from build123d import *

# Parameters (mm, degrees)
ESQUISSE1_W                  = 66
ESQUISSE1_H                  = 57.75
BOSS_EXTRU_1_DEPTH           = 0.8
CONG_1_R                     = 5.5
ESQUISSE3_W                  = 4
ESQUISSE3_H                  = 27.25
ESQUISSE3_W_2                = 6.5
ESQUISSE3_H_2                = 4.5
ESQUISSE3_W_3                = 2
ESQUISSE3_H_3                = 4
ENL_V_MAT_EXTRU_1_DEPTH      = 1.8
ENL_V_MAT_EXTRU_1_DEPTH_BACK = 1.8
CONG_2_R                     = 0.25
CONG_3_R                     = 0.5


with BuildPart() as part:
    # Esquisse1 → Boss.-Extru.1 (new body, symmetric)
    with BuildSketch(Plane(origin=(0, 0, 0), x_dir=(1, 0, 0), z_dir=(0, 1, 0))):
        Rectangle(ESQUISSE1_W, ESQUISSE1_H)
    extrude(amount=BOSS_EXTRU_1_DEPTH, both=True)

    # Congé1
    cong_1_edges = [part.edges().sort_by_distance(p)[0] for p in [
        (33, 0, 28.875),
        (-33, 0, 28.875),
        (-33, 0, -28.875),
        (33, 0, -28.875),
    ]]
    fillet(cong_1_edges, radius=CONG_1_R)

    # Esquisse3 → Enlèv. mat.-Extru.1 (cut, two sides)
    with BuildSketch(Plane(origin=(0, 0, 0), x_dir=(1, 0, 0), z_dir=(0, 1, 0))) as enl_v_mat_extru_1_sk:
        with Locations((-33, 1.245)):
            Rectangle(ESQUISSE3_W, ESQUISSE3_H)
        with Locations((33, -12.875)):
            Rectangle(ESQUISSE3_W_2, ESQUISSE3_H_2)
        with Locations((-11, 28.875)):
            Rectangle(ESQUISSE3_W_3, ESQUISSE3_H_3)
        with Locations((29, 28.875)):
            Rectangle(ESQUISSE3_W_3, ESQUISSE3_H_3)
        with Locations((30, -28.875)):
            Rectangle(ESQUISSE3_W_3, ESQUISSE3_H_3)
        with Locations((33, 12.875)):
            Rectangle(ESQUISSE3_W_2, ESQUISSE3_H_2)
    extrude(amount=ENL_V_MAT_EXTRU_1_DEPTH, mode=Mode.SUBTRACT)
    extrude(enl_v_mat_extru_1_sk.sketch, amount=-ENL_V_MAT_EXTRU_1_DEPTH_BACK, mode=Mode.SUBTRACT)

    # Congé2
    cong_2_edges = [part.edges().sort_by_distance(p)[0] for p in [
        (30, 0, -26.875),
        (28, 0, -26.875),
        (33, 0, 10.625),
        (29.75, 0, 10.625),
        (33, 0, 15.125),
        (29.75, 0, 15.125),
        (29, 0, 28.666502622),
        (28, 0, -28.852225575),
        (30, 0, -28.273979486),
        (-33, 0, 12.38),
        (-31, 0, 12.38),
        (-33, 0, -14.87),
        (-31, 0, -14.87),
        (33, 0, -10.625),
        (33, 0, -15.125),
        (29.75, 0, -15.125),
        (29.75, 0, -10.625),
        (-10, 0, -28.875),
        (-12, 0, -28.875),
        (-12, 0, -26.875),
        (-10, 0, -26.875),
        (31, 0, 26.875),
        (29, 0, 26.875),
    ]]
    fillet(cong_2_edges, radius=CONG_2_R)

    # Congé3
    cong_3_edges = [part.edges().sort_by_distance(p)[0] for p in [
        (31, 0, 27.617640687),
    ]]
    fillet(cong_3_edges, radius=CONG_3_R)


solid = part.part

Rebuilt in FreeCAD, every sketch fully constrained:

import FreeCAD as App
import Part
import Sketcher
Q = App.Units.Quantity


def edges_at(feature, points):
    """Names of the edges that pass closest to the given points."""
    edges = feature.Shape.Edges
    near = lambda p: min(range(len(edges)), key=lambda i: edges[i].distToShape(Part.Vertex(*p))[0])
    return sorted({f"Edge{near(p) + 1}" for p in points})

doc = App.newDocument("Part")
body = doc.addObject("PartDesign::Body", "Body")

sketch1 = doc.addObject("Sketcher::SketchObject", "Sketch")
body.addObject(sketch1)
sketch1.AttachmentSupport = (doc.XZ_Plane, [""])
sketch1.MapMode = "FlatFace"
sketch1.addGeometry([
    Part.LineSegment(App.Vector(-33, -28.875, 0), App.Vector(-33, 28.875, 0)),
    Part.LineSegment(App.Vector(-33, 28.875, 0), App.Vector(33, 28.875, 0)),
    Part.LineSegment(App.Vector(33, 28.875, 0), App.Vector(33, -28.875, 0)),
    Part.LineSegment(App.Vector(33, -28.875, 0), App.Vector(-33, -28.875, 0)),
], False)
sketch1.addConstraint([
    Sketcher.Constraint("Coincident", 0, 2, 1, 1),
    Sketcher.Constraint("Coincident", 1, 2, 2, 1),
    Sketcher.Constraint("Coincident", 2, 2, 3, 1),
    Sketcher.Constraint("Coincident", 3, 2, 0, 1),
    Sketcher.Constraint("Vertical", 0),
    Sketcher.Constraint("Horizontal", 1),
    Sketcher.Constraint("Vertical", 2),
    Sketcher.Constraint("Horizontal", 3),
    Sketcher.Constraint("Symmetric", 0, 2, 2, 2, -1, 1),
    Sketcher.Constraint("DistanceX", 1, 1, 1, 2, Q("66 mm")),
    Sketcher.Constraint("DistanceY", 0, 1, 0, 2, Q("57.75 mm")),
])
pad1 = doc.addObject("PartDesign::Pad", "Pad")
body.addObject(pad1)
pad1.Profile = sketch1
pad1.Length = 1.6
pad1.Midplane = True
doc.recompute()

fillet = doc.addObject("PartDesign::Fillet", "Fillet")
body.addObject(fillet)
fillet.Base = (pad1, edges_at(pad1, [
    (33, 0, 28.875),
    (-33, 0, 28.875),
    (-33, 0, -28.875),
    (33, 0, -28.875),
]))
fillet.Radius = 5.5

sketch2 = doc.addObject("Sketcher::SketchObject", "Sketch001")
body.addObject(sketch2)
sketch2.AttachmentSupport = (doc.XZ_Plane, [""])
sketch2.MapMode = "FlatFace"
sketch2.addGeometry([
    Part.LineSegment(App.Vector(-35, -14.87, 0), App.Vector(-35, 12.38, 0)),
    Part.LineSegment(App.Vector(-35, 12.38, 0), App.Vector(-31, 12.38, 0)),
    Part.LineSegment(App.Vector(-31, 12.38, 0), App.Vector(-31, -14.87, 0)),
    Part.LineSegment(App.Vector(-31, -14.87, 0), App.Vector(-35, -14.87, 0)),
    Part.LineSegment(App.Vector(29.75, 10.625, 0), App.Vector(29.75, 15.125, 0)),
    Part.LineSegment(App.Vector(29.75, 15.125, 0), App.Vector(36.25, 15.125, 0)),
    Part.LineSegment(App.Vector(36.25, 15.125, 0), App.Vector(36.25, 10.625, 0)),
    Part.LineSegment(App.Vector(36.25, 10.625, 0), App.Vector(29.75, 10.625, 0)),
    Part.LineSegment(App.Vector(-12, -30.875, 0), App.Vector(-12, -26.875, 0)),
    Part.LineSegment(App.Vector(-12, -26.875, 0), App.Vector(-10, -26.875, 0)),
    Part.LineSegment(App.Vector(-10, -26.875, 0), App.Vector(-10, -30.875, 0)),
    Part.LineSegment(App.Vector(-10, -30.875, 0), App.Vector(-12, -30.875, 0)),
    Part.LineSegment(App.Vector(28, -30.875, 0), App.Vector(28, -26.875, 0)),
    Part.LineSegment(App.Vector(28, -26.875, 0), App.Vector(30, -26.875, 0)),
    Part.LineSegment(App.Vector(30, -26.875, 0), App.Vector(30, -30.875, 0)),
    Part.LineSegment(App.Vector(30, -30.875, 0), App.Vector(28, -30.875, 0)),
    Part.LineSegment(App.Vector(29, 26.875, 0), App.Vector(29, 30.875, 0)),
    Part.LineSegment(App.Vector(29, 30.875, 0), App.Vector(31, 30.875, 0)),
    Part.LineSegment(App.Vector(31, 30.875, 0), App.Vector(31, 26.875, 0)),
    Part.LineSegment(App.Vector(31, 26.875, 0), App.Vector(29, 26.875, 0)),
    Part.LineSegment(App.Vector(29.75, -15.125, 0), App.Vector(29.75, -10.625, 0)),
    Part.LineSegment(App.Vector(29.75, -10.625, 0), App.Vector(36.25, -10.625, 0)),
    Part.LineSegment(App.Vector(36.25, -10.625, 0), App.Vector(36.25, -15.125, 0)),
    Part.LineSegment(App.Vector(36.25, -15.125, 0), App.Vector(29.75, -15.125, 0)),
], False)
sketch2.addConstraint([
    Sketcher.Constraint("Coincident", 0, 2, 1, 1),
    Sketcher.Constraint("Coincident", 1, 2, 2, 1),
    Sketcher.Constraint("Coincident", 2, 2, 3, 1),
    Sketcher.Constraint("Coincident", 3, 2, 0, 1),
    Sketcher.Constraint("Coincident", 4, 2, 5, 1),
    Sketcher.Constraint("Coincident", 5, 2, 6, 1),
    Sketcher.Constraint("Coincident", 6, 2, 7, 1),
    Sketcher.Constraint("Coincident", 7, 2, 4, 1),
    Sketcher.Constraint("Coincident", 8, 2, 9, 1),
    Sketcher.Constraint("Coincident", 9, 2, 10, 1),
    Sketcher.Constraint("Coincident", 10, 2, 11, 1),
    Sketcher.Constraint("Coincident", 11, 2, 8, 1),
    Sketcher.Constraint("Coincident", 12, 2, 13, 1),
    Sketcher.Constraint("Coincident", 13, 2, 14, 1),
    Sketcher.Constraint("Coincident", 14, 2, 15, 1),
    Sketcher.Constraint("Coincident", 15, 2, 12, 1),
    Sketcher.Constraint("Coincident", 16, 2, 17, 1),
    Sketcher.Constraint("Coincident", 17, 2, 18, 1),
    Sketcher.Constraint("Coincident", 18, 2, 19, 1),
    Sketcher.Constraint("Coincident", 19, 2, 16, 1),
    Sketcher.Constraint("Coincident", 20, 2, 21, 1),
    Sketcher.Constraint("Coincident", 21, 2, 22, 1),
    Sketcher.Constraint("Coincident", 22, 2, 23, 1),
    Sketcher.Constraint("Coincident", 23, 2, 20, 1),
    Sketcher.Constraint("Vertical", 0),
    Sketcher.Constraint("Horizontal", 1),
    Sketcher.Constraint("Vertical", 2),
    Sketcher.Constraint("Horizontal", 3),
    Sketcher.Constraint("Vertical", 4),
    Sketcher.Constraint("Horizontal", 5),
    Sketcher.Constraint("Vertical", 6),
    Sketcher.Constraint("Horizontal", 7),
    Sketcher.Constraint("Vertical", 8),
    Sketcher.Constraint("Horizontal", 9),
    Sketcher.Constraint("Vertical", 10),
    Sketcher.Constraint("Horizontal", 11),
    Sketcher.Constraint("Vertical", 12),
    Sketcher.Constraint("Horizontal", 13),
    Sketcher.Constraint("Vertical", 14),
    Sketcher.Constraint("Horizontal", 15),
    Sketcher.Constraint("Vertical", 16),
    Sketcher.Constraint("Horizontal", 17),
    Sketcher.Constraint("Vertical", 18),
    Sketcher.Constraint("Horizontal", 19),
    Sketcher.Constraint("Vertical", 20),
    Sketcher.Constraint("Horizontal", 21),
    Sketcher.Constraint("Vertical", 22),
    Sketcher.Constraint("Horizontal", 23),
    Sketcher.Constraint("Symmetric", 7, 2, 20, 2, -1),
    Sketcher.Constraint("Symmetric", 5, 2, 22, 2, -1),
    Sketcher.Constraint("Horizontal", 9, 2, 12, 2),
    Sketcher.Constraint("Horizontal", 11, 2, 14, 2),
    Sketcher.Constraint("Equal", 11, 13),
    Sketcher.Constraint("Equal", 15, 17),
    Sketcher.Constraint("Equal", 3, 8),
    Sketcher.Constraint("Equal", 14, 16),
    Sketcher.Constraint("DistanceX", 1, 1, 1, 2, Q("4 mm")),
    Sketcher.Constraint("DistanceX", 9, 1, 9, 2, Q("2 mm")),
    Sketcher.Constraint("DistanceX", 5, 1, 5, 2, Q("6.5 mm")),
    Sketcher.Constraint("DistanceY", 4, 1, 4, 2, Q("4.5 mm")),
    Sketcher.Constraint("DistanceX", 0, 2, -1, 1, Q("35 mm")),
    Sketcher.Constraint("DistanceX", 8, 2, -1, 1, Q("12 mm")),
    Sketcher.Constraint("DistanceX", -1, 1, 12, 2, Q("28 mm")),
    Sketcher.Constraint("DistanceX", -1, 1, 16, 2, Q("29 mm")),
    Sketcher.Constraint("DistanceY", 0, 1, 0, 2, Q("27.25 mm")),
    Sketcher.Constraint("DistanceY", 8, 2, 7, 2, Q("37.5 mm")),
    Sketcher.Constraint("DistanceY", -1, 1, 0, 2, Q("12.38 mm")),
    Sketcher.Constraint("DistanceX", -1, 1, 4, 2, Q("29.75 mm")),
    Sketcher.Constraint("DistanceY", 4, 2, 16, 2, Q("15.75 mm")),
    Sketcher.Constraint("DistanceY", 13, 2, 20, 2, Q("16.25 mm")),
])
pocket1 = doc.addObject("PartDesign::Pocket", "Pocket")
body.addObject(pocket1)
pocket1.Profile = sketch2
pocket1.Type = "ThroughAll"
pocket1.Midplane = True
doc.recompute()

fillet2 = doc.addObject("PartDesign::Fillet", "Fillet001")
body.addObject(fillet2)
fillet2.Base = (pocket1, edges_at(pocket1, [
    (30, 0, -26.875),
    (28, 0, -26.875),
    (33, 0, 10.625),
    (29.75, 0, 10.625),
    (33, 0, 15.125),
    (29.75, 0, 15.125),
    (29, 0, 28.667),
    (28, 0, -28.852),
    (30, 0, -28.274),
    (-33, 0, 12.38),
    (-31, 0, 12.38),
    (-33, 0, -14.87),
    (-31, 0, -14.87),
    (33, 0, -10.625),
    (33, 0, -15.125),
    (29.75, 0, -15.125),
    (29.75, 0, -10.625),
    (-10, 0, -28.875),
    (-12, 0, -28.875),
    (-12, 0, -26.875),
    (-10, 0, -26.875),
    (31, 0, 26.875),
    (29, 0, 26.875),
]))
fillet2.Radius = 0.25
doc.recompute()

fillet3 = doc.addObject("PartDesign::Fillet", "Fillet002")
body.addObject(fillet3)
fillet3.Base = (fillet2, edges_at(fillet2, [(31, 0, 27.618)]))
fillet3.Radius = 0.5

doc.recompute()
